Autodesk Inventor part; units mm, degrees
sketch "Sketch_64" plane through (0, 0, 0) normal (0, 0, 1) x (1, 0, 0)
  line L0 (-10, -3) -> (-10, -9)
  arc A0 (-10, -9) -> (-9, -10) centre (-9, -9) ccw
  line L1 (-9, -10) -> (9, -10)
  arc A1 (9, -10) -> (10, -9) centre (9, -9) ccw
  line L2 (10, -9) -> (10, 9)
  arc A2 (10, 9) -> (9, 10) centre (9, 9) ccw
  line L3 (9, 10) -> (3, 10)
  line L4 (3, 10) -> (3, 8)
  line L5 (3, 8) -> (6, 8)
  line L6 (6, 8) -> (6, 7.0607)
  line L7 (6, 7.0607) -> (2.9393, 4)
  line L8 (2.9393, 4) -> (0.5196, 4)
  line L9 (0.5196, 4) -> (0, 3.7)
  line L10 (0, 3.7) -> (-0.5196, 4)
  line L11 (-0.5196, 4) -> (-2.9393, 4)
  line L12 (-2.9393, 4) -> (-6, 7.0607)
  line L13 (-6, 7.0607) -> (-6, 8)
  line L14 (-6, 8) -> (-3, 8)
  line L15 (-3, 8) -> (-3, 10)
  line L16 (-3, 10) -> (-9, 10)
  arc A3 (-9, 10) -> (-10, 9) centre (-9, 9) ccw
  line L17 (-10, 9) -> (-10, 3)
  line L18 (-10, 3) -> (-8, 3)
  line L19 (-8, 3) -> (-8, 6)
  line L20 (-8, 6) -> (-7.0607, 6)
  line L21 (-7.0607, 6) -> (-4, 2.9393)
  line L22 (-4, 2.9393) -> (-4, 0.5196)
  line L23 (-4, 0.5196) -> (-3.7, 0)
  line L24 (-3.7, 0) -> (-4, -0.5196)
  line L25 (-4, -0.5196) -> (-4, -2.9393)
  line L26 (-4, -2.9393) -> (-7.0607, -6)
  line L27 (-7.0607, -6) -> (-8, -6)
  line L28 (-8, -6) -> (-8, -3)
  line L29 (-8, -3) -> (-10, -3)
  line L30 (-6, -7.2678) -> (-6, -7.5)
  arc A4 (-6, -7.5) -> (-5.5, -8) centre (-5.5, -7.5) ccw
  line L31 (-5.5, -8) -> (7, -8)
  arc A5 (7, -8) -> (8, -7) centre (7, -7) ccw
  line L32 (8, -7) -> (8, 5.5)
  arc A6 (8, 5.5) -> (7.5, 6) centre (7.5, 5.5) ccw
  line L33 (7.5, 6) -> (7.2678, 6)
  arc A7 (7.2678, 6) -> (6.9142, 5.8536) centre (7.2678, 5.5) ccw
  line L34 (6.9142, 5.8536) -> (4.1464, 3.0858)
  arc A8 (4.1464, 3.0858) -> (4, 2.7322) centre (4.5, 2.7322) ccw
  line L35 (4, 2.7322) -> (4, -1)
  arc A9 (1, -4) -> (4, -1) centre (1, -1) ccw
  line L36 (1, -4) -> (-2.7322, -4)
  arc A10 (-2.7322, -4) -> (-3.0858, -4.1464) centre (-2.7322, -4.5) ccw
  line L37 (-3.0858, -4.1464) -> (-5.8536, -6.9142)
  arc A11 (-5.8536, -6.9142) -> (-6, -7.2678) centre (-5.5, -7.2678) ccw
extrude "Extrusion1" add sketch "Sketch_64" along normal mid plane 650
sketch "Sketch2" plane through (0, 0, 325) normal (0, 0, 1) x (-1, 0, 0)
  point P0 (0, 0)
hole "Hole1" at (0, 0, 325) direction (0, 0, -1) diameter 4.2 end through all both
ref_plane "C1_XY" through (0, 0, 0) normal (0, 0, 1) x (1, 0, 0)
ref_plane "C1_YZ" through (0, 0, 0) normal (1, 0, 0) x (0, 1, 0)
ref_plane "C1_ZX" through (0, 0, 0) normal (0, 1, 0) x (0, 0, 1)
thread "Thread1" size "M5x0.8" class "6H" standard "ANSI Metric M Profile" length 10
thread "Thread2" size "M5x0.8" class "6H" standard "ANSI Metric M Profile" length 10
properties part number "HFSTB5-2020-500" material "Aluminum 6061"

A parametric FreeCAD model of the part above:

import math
import FreeCAD as App
import Part
import Sketcher

V = App.Vector
Q = App.Units.Quantity

doc = App.newDocument("Part")
body = doc.addObject("PartDesign::Body", "Body")

sketch1 = body.newObject("Sketcher::SketchObject", "Sketch")
sketch1.AttachmentSupport = (doc.getObject("XY_Plane"), [""])
sketch1.MapMode = "FlatFace"
sketch1.addGeometry(Part.LineSegment(V(-8, -3, 0), V(-10, -3, 0)), False)
sketch1.addGeometry(Part.LineSegment(V(-10, -3, 0), V(-10, -9, 0)), False)
sketch1.addGeometry(Part.ArcOfCircle(Part.Circle(V(-9, -9, 0), V(0, 0, 1), 1), math.radians(180), math.radians(270)), False)
sketch1.addGeometry(Part.LineSegment(V(-9, -10, 0), V(9, -10, 0)), False)
sketch1.addGeometry(Part.ArcOfCircle(Part.Circle(V(9, -9, 0), V(0, 0, 1), 1), math.radians(-90), math.radians(0)), False)
sketch1.addGeometry(Part.LineSegment(V(10, -9, 0), V(10, 9, 0)), False)
sketch1.addGeometry(Part.ArcOfCircle(Part.Circle(V(9, 9, 0), V(0, 0, 1), 1), math.radians(0), math.radians(90)), False)
sketch1.addGeometry(Part.LineSegment(V(9, 10, 0), V(3, 10, 0)), False)
sketch1.addGeometry(Part.LineSegment(V(3, 10, 0), V(3, 8, 0)), False)
sketch1.addGeometry(Part.LineSegment(V(3, 8, 0), V(6, 8, 0)), False)
sketch1.addGeometry(Part.LineSegment(V(6, 8, 0), V(6, 7.06, 0)), False)
sketch1.addGeometry(Part.LineSegment(V(6, 7.06, 0), V(2.94, 4, 0)), False)
sketch1.addGeometry(Part.LineSegment(V(2.94, 4, 0), V(0.52, 4, 0)), False)
sketch1.addGeometry(Part.LineSegment(V(0.52, 4, 0), V(0, 3.7, 0)), False)
sketch1.addGeometry(Part.LineSegment(V(0, 3.7, 0), V(-0.52, 4, 0)), False)
sketch1.addGeometry(Part.LineSegment(V(-0.52, 4, 0), V(-2.94, 4, 0)), False)
sketch1.addGeometry(Part.LineSegment(V(-2.94, 4, 0), V(-6, 7.06, 0)), False)
sketch1.addGeometry(Part.LineSegment(V(-6, 7.06, 0), V(-6, 8, 0)), False)
sketch1.addGeometry(Part.LineSegment(V(-6, 8, 0), V(-3, 8, 0)), False)
sketch1.addGeometry(Part.LineSegment(V(-3, 8, 0), V(-3, 10, 0)), False)
sketch1.addGeometry(Part.LineSegment(V(-3, 10, 0), V(-9, 10, 0)), False)
sketch1.addGeometry(Part.ArcOfCircle(Part.Circle(V(-9, 9, 0), V(0, 0, 1), 1), math.radians(90), math.radians(180)), False)
sketch1.addGeometry(Part.LineSegment(V(-10, 9, 0), V(-10, 3, 0)), False)
sketch1.addGeometry(Part.LineSegment(V(-10, 3, 0), V(-8, 3, 0)), False)
sketch1.addGeometry(Part.LineSegment(V(-8, 3, 0), V(-8, 6, 0)), False)
sketch1.addGeometry(Part.LineSegment(V(-8, 6, 0), V(-7.06, 6, 0)), False)
sketch1.addGeometry(Part.LineSegment(V(-7.06, 6, 0), V(-4, 2.94, 0)), False)
sketch1.addGeometry(Part.LineSegment(V(-4, 2.94, 0), V(-4, 0.52, 0)), False)
sketch1.addGeometry(Part.LineSegment(V(-4, 0.52, 0), V(-3.7, 0, 0)), False)
sketch1.addGeometry(Part.LineSegment(V(-3.7, 0, 0), V(-4, -0.52, 0)), False)
sketch1.addGeometry(Part.LineSegment(V(-4, -0.52, 0), V(-4, -2.94, 0)), False)
sketch1.addGeometry(Part.LineSegment(V(-4, -2.94, 0), V(-7.06, -6, 0)), False)
sketch1.addGeometry(Part.LineSegment(V(-7.06, -6, 0), V(-8, -6, 0)), False)
sketch1.addGeometry(Part.LineSegment(V(-8, -6, 0), V(-8, -3, 0)), False)
sketch1.addGeometry(Part.LineSegment(V(-6, -7.5, 0), V(-6, -7.27, 0)), False)
sketch1.addGeometry(Part.ArcOfCircle(Part.Circle(V(-5.5, -7.27, 0), V(0, 0, 1), 0.5), math.radians(135), math.radians(180)), False)
sketch1.addGeometry(Part.LineSegment(V(-5.85, -6.91, 0), V(-3.09, -4.15, 0)), False)
sketch1.addGeometry(Part.ArcOfCircle(Part.Circle(V(-2.73, -4.5, 0), V(0, 0, 1), 0.5), math.radians(90), math.radians(135)), False)
sketch1.addGeometry(Part.LineSegment(V(-2.73, -4, 0), V(1, -4, 0)), False)
sketch1.addGeometry(Part.ArcOfCircle(Part.Circle(V(1, -1, 0), V(0, 0, 1), 3), math.radians(-90), math.radians(0)), False)
sketch1.addGeometry(Part.LineSegment(V(4, -1, 0), V(4, 2.73, 0)), False)
sketch1.addGeometry(Part.ArcOfCircle(Part.Circle(V(4.5, 2.73, 0), V(0, 0, 1), 0.5), math.radians(135), math.radians(180)), False)
sketch1.addGeometry(Part.LineSegment(V(4.15, 3.09, 0), V(6.91, 5.85, 0)), False)
sketch1.addGeometry(Part.ArcOfCircle(Part.Circle(V(7.27, 5.5, 0), V(0, 0, 1), 0.5), math.radians(90), math.radians(135)), False)
sketch1.addGeometry(Part.LineSegment(V(7.27, 6, 0), V(7.5, 6, 0)), False)
sketch1.addGeometry(Part.ArcOfCircle(Part.Circle(V(7.5, 5.5, 0), V(0, 0, 1), 0.5), math.radians(0), math.radians(90)), False)
sketch1.addGeometry(Part.LineSegment(V(8, 5.5, 0), V(8, -7, 0)), False)
sketch1.addGeometry(Part.ArcOfCircle(Part.Circle(V(7, -7, 0), V(0, 0, 1), 1), math.radians(-90), math.radians(0)), False)
sketch1.addGeometry(Part.LineSegment(V(7, -8, 0), V(-5.5, -8, 0)), False)
sketch1.addGeometry(Part.ArcOfCircle(Part.Circle(V(-5.5, -7.5, 0), V(0, 0, 1), 0.5), math.radians(180), math.radians(270)), False)
sketch1.addConstraint(Sketcher.Constraint("Coincident", 0, 2, 1, 1))
sketch1.addConstraint(Sketcher.Constraint("Tangent", 1, 2, 2, 1))
sketch1.addConstraint(Sketcher.Constraint("Tangent", 2, 2, 3, 1))
sketch1.addConstraint(Sketcher.Constraint("Tangent", 3, 2, 4, 1))
sketch1.addConstraint(Sketcher.Constraint("Tangent", 4, 2, 5, 1))
sketch1.addConstraint(Sketcher.Constraint("Tangent", 5, 2, 6, 1))
sketch1.addConstraint(Sketcher.Constraint("Tangent", 6, 2, 7, 1))
sketch1.addConstraint(Sketcher.Constraint("Coincident", 7, 2, 8, 1))
sketch1.addConstraint(Sketcher.Constraint("Coincident", 8, 2, 9, 1))
sketch1.addConstraint(Sketcher.Constraint("Coincident", 9, 2, 10, 1))
sketch1.addConstraint(Sketcher.Constraint("Coincident", 10, 2, 11, 1))
sketch1.addConstraint(Sketcher.Constraint("Coincident", 11, 2, 12, 1))
sketch1.addConstraint(Sketcher.Constraint("Coincident", 12, 2, 13, 1))
sketch1.addConstraint(Sketcher.Constraint("Coincident", 13, 2, 14, 1))
sketch1.addConstraint(Sketcher.Constraint("Coincident", 14, 2, 15, 1))
sketch1.addConstraint(Sketcher.Constraint("Coincident", 15, 2, 16, 1))
sketch1.addConstraint(Sketcher.Constraint("Coincident", 16, 2, 17, 1))
sketch1.addConstraint(Sketcher.Constraint("Coincident", 17, 2, 18, 1))
sketch1.addConstraint(Sketcher.Constraint("Coincident", 18, 2, 19, 1))
sketch1.addConstraint(Sketcher.Constraint("Coincident", 19, 2, 20, 1))
sketch1.addConstraint(Sketcher.Constraint("Tangent", 20, 2, 21, 1))
sketch1.addConstraint(Sketcher.Constraint("Tangent", 21, 2, 22, 1))
sketch1.addConstraint(Sketcher.Constraint("Coincident", 22, 2, 23, 1))
sketch1.addConstraint(Sketcher.Constraint("Coincident", 23, 2, 24, 1))
sketch1.addConstraint(Sketcher.Constraint("Coincident", 24, 2, 25, 1))
sketch1.addConstraint(Sketcher.Constraint("Coincident", 25, 2, 26, 1))
sketch1.addConstraint(Sketcher.Constraint("Coincident", 26, 2, 27, 1))
sketch1.addConstraint(Sketcher.Constraint("Coincident", 27, 2, 28, 1))
sketch1.addConstraint(Sketcher.Constraint("Coincident", 28, 2, 29, 1))
sketch1.addConstraint(Sketcher.Constraint("Coincident", 29, 2, 30, 1))
sketch1.addConstraint(Sketcher.Constraint("Coincident", 30, 2, 31, 1))
sketch1.addConstraint(Sketcher.Constraint("Coincident", 31, 2, 32, 1))
sketch1.addConstraint(Sketcher.Constraint("Coincident", 32, 2, 33, 1))
sketch1.addConstraint(Sketcher.Constraint("Coincident", 33, 2, 0, 1))
sketch1.addConstraint(Sketcher.Constraint("Tangent", 34, 2, 35, 2))
sketch1.addConstraint(Sketcher.Constraint("Tangent", 35, 1, 36, 1))
sketch1.addConstraint(Sketcher.Constraint("Tangent", 36, 2, 37, 2))
sketch1.addConstraint(Sketcher.Constraint("Tangent", 37, 1, 38, 1))
sketch1.addConstraint(Sketcher.Constraint("Tangent", 38, 2, 39, 1))
sketch1.addConstraint(Sketcher.Constraint("Tangent", 39, 2, 40, 1))
sketch1.addConstraint(Sketcher.Constraint("Tangent", 40, 2, 41, 2))
sketch1.addConstraint(Sketcher.Constraint("Tangent", 41, 1, 42, 1))
sketch1.addConstraint(Sketcher.Constraint("Tangent", 42, 2, 43, 2))
sketch1.addConstraint(Sketcher.Constraint("Tangent", 43, 1, 44, 1))
sketch1.addConstraint(Sketcher.Constraint("Tangent", 44, 2, 45, 2))
sketch1.addConstraint(Sketcher.Constraint("Tangent", 45, 1, 46, 1))
sketch1.addConstraint(Sketcher.Constraint("Tangent", 46, 2, 47, 2))
sketch1.addConstraint(Sketcher.Constraint("Tangent", 47, 1, 48, 1))
sketch1.addConstraint(Sketcher.Constraint("Tangent", 48, 2, 49, 2))
sketch1.addConstraint(Sketcher.Constraint("Tangent", 49, 1, 34, 1))
sketch1.addConstraint(Sketcher.Constraint("Horizontal", 0))
sketch1.addConstraint(Sketcher.Constraint("Vertical", 1))
sketch1.addConstraint(Sketcher.Constraint("Horizontal", 3))
sketch1.addConstraint(Sketcher.Constraint("Vertical", 5))
sketch1.addConstraint(Sketcher.Constraint("Horizontal", 7))
sketch1.addConstraint(Sketcher.Constraint("Vertical", 8))
sketch1.addConstraint(Sketcher.Constraint("Horizontal", 9))
sketch1.addConstraint(Sketcher.Constraint("Vertical", 10))
sketch1.addConstraint(Sketcher.Constraint("Horizontal", 12))
sketch1.addConstraint(Sketcher.Constraint("Horizontal", 15))
sketch1.addConstraint(Sketcher.Constraint("Vertical", 17))
sketch1.addConstraint(Sketcher.Constraint("Horizontal", 18))
sketch1.addConstraint(Sketcher.Constraint("Vertical", 19))
sketch1.addConstraint(Sketcher.Constraint("Horizontal", 20))
sketch1.addConstraint(Sketcher.Constraint("Vertical", 22))
sketch1.addConstraint(Sketcher.Constraint("Horizontal", 23))
sketch1.addConstraint(Sketcher.Constraint("Vertical", 24))
sketch1.addConstraint(Sketcher.Constraint("Horizontal", 25))
sketch1.addConstraint(Sketcher.Constraint("Vertical", 27))
sketch1.addConstraint(Sketcher.Constraint("Vertical", 30))
sketch1.addConstraint(Sketcher.Constraint("Horizontal", 32))
sketch1.addConstraint(Sketcher.Constraint("Vertical", 33))
sketch1.addConstraint(Sketcher.Constraint("Vertical", 34))
sketch1.addConstraint(Sketcher.Constraint("Horizontal", 38))
sketch1.addConstraint(Sketcher.Constraint("Vertical", 40))
sketch1.addConstraint(Sketcher.Constraint("Horizontal", 44))
sketch1.addConstraint(Sketcher.Constraint("Vertical", 46))
sketch1.addConstraint(Sketcher.Constraint("Horizontal", 48))
sketch1.addConstraint(Sketcher.Constraint("Equal", 2, 4))
sketch1.addConstraint(Sketcher.Constraint("Equal", 4, 6))
sketch1.addConstraint(Sketcher.Constraint("Equal", 6, 21))
sketch1.addConstraint(Sketcher.Constraint("Equal", 35, 37))
sketch1.addConstraint(Sketcher.Constraint("Equal", 37, 41))
sketch1.addConstraint(Sketcher.Constraint("Equal", 41, 43))
sketch1.addConstraint(Sketcher.Constraint("Equal", 43, 45))
sketch1.addConstraint(Sketcher.Constraint("Equal", 21, 47))
sketch1.addConstraint(Sketcher.Constraint("Equal", 45, 49))
sketch1.addConstraint(Sketcher.Constraint("Symmetric", 2, 3, 6, 3, -1, 1))
sketch1.addConstraint(Sketcher.Constraint("Symmetric", 4, 3, 21, 3, -1, 1))
sketch1.addConstraint(Sketcher.Constraint("Symmetric", 12, 2, 14, 2, -2))
sketch1.addConstraint(Sketcher.Constraint("Symmetric", 10, 2, 16, 2, -2))
sketch1.addConstraint(Sketcher.Constraint("Symmetric", 8, 2, 18, 2, -2))
sketch1.addConstraint(Sketcher.Constraint("Symmetric", 27, 2, 29, 2, -1))
sketch1.addConstraint(Sketcher.Constraint("Symmetric", 25, 2, 31, 2, -1))
sketch1.addConstraint(Sketcher.Constraint("Symmetric", 23, 2, 33, 2, -1))
sketch1.addConstraint(Sketcher.Constraint("PointOnObject", 13, 2, -2))
sketch1.addConstraint(Sketcher.Constraint("PointOnObject", 28, 2, -1))
sketch1.addConstraint(Sketcher.Constraint("Perpendicular", 11, 16))
sketch1.addConstraint(Sketcher.Constraint("Parallel", 16, 26))
sketch1.addConstraint(Sketcher.Constraint("Perpendicular", 13, 28))
sketch1.addConstraint(Sketcher.Constraint("Perpendicular", 26, 31))
sketch1.addConstraint(Sketcher.Constraint("Parallel", 31, 36))
sketch1.addConstraint(Sketcher.Constraint("Parallel", 36, 42))
sketch1.addConstraint(Sketcher.Constraint("Horizontal", 25, 2, 43, 1))
sketch1.addConstraint(Sketcher.Constraint("Vertical", 17, 2, 34, 2))
sketch1.addConstraint(Sketcher.Constraint("Equal", 12, 15))
sketch1.addConstraint(Sketcher.Constraint("Equal", 20, 1))
sketch1.addConstraint(Sketcher.Constraint("Equal", 3, 5))
sketch1.addConstraint(Sketcher.Constraint("Equal", 23, 8))
sketch1.addConstraint(Sketcher.Constraint("Equal", 32, 10))
sketch1.addConstraint(Sketcher.Constraint("Equal", 18, 24))
sketch1.addConstraint(Sketcher.Constraint("Equal", 15, 27))
sketch1.addConstraint(Sketcher.Constraint("Equal", 44, 34))
sketch1.addConstraint(Sketcher.Constraint("Equal", 38, 40))
sketch1.addConstraint(Sketcher.Constraint("Equal", 16, 26))
sketch1.addConstraint(Sketcher.Constraint("Equal", 36, 42))
sketch1.addConstraint(Sketcher.Constraint("Radius", 2, Q("1 mm")))
sketch1.addConstraint(Sketcher.Constraint("Radius", 39, Q("3 mm")))
sketch1.addConstraint(Sketcher.Constraint("Radius", 35, Q("0.5 mm")))
sketch1.addConstraint(Sketcher.Constraint("DistanceX", 0, 2, 0, 1, Q("2 mm")))
sketch1.addConstraint(Sketcher.Constraint("DistanceX", 3, 1, 3, 2, Q("18 mm")))
sketch1.addConstraint(Sketcher.Constraint("DistanceX", 7, 2, 7, 1, Q("6 mm")))
sketch1.addConstraint(Sketcher.Constraint("DistanceX", 9, 1, 9, 2, Q("3 mm")))
sketch1.addConstraint(Sketcher.Constraint("Angle", 13, Q("-149.9993 deg")))
sketch1.addConstraint(Sketcher.Constraint("DistanceX", 48, 2, 48, 1, Q("12.5 mm")))
sketch1.addConstraint(Sketcher.Constraint("DistanceX", -1, 1, 39, 3, Q("1 mm")))
sketch1.addConstraint(Sketcher.Constraint("DistanceY", -1, 1, 11, 2, Q("4 mm")))
sketch1.addConstraint(Sketcher.Constraint("Distance", 13, Q("0.6 mm")))
sketch1.addConstraint(Sketcher.Constraint("DistanceX", 12, 2, 12, 1, Q("2.4197 mm")))
sketch1.addConstraint(Sketcher.Constraint("DistanceX", 38, 1, 38, 2, Q("3.7322 mm")))
pad1 = body.newObject("PartDesign::Pad", "Pad")
pad1.Profile = sketch1
pad1.Length = 650
pad1.Midplane = True

sketch2 = body.newObject("Sketcher::SketchObject", "Sketch001")
sketch2.AttachmentSupport = (doc.getObject("XY_Plane"), [""])
sketch2.MapMode = "FlatFace"
sketch2.AttachmentOffset = App.Placement(V(0, 0, 325), App.Rotation())
sketch2.addGeometry(Part.Circle(V(0, 0, 0), V(0, 0, 1), 2.1), False)
sketch2.addConstraint(Sketcher.Constraint("Coincident", 0, 3, -1, 1))
sketch2.addConstraint(Sketcher.Constraint("Diameter", 0, Q("4.2 mm")))
doc.recompute()
hole = body.newObject("PartDesign::Hole", "Hole")
hole.Profile = sketch2
hole.ThreadType = "None"
hole.Diameter = 4.2
hole.DepthType = "ThroughAll"

doc.recompute()
